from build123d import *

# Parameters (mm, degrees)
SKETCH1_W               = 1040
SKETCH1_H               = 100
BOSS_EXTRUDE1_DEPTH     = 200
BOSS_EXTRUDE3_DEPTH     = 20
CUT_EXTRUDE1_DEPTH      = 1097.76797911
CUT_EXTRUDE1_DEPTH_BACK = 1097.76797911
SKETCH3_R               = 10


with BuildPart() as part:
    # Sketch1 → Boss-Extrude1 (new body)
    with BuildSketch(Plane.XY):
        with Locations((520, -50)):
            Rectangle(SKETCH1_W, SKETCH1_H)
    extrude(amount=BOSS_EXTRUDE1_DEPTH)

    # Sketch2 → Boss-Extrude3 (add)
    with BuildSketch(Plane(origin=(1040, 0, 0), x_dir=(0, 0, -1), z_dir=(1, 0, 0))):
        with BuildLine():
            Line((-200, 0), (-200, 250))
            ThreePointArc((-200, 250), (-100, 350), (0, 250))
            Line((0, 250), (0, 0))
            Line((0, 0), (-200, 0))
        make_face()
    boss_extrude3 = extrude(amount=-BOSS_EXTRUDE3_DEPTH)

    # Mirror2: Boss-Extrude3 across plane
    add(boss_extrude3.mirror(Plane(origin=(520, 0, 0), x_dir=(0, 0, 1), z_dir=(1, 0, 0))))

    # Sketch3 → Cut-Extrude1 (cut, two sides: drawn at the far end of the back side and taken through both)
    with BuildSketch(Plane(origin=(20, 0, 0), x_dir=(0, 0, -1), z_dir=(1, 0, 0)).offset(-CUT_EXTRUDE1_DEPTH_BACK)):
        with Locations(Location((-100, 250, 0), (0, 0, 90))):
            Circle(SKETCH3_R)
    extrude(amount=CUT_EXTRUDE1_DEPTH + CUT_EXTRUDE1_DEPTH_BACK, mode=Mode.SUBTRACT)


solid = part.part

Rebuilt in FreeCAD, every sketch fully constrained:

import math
import FreeCAD as App
import Part
import Sketcher

V = App.Vector


def add_polygon(sketch, points):
    """Adds a closed chain of lines whose ends are joined by coincident constraints."""
    first, n = sketch.GeometryCount, len(points)
    for a, b in zip(points, points[1:] + points[:1]):
        sketch.addGeometry(Part.LineSegment(App.Vector(*a, 0), App.Vector(*b, 0)), False)
    for i in range(n):
        sketch.addConstraint(Sketcher.Constraint("Coincident", first + i, 2, first + (i + 1) % n, 1))

doc = App.newDocument("Part")
body = doc.addObject("PartDesign::Body", "Body")

# Sketch on XY plane
sketch1 = body.newObject("Sketcher::SketchObject", "Sketch")
sketch1.AttachmentSupport = (doc.getObject("XY_Plane"), [""])
sketch1.MapMode = "FlatFace"
add_polygon(sketch1, [(0, 0), (0, -100), (1040, -100), (1040, 0)])  # lines 0-3
sketch1.addConstraint(Sketcher.Constraint("Vertical", 0))
sketch1.addConstraint(Sketcher.Constraint("Horizontal", 1))
sketch1.addConstraint(Sketcher.Constraint("Vertical", 2))
sketch1.addConstraint(Sketcher.Constraint("Horizontal", 3))
sketch1.addConstraint(Sketcher.Constraint("Coincident", 3, 2, -1, 1))
sketch1.addConstraint(Sketcher.Constraint("DistanceX", 1, 1, 1, 2, 1040.0))
sketch1.addConstraint(Sketcher.Constraint("DistanceY", 0, 2, 0, 1, 100.0))
pad1 = body.newObject("PartDesign::Pad", "Pad")
pad1.Profile = sketch1
pad1.Length = 200

# Sketch on YZ plane
sketch2 = body.newObject("Sketcher::SketchObject", "Sketch001")
sketch2.AttachmentSupport = (doc.getObject("YZ_Plane"), [""])
sketch2.MapMode = "FlatFace"
sketch2.AttachmentOffset = App.Placement(V(0, 0, 1040), App.Rotation())
sketch2.addGeometry(Part.LineSegment(V(250, 200, 0), V(0, 200, 0)), False)
sketch2.addGeometry(Part.LineSegment(V(0, 200, 0), V(0, 0, 0)), False)
sketch2.addGeometry(Part.LineSegment(V(0, 0, 0), V(250, 0, 0)), False)
sketch2.addGeometry(Part.ArcOfCircle(Part.Circle(V(250, 100, 0), V(0, 0, 1), 100), math.radians(-90), math.radians(90)), False)
sketch2.addConstraint(Sketcher.Constraint("Coincident", 0, 2, 1, 1))
sketch2.addConstraint(Sketcher.Constraint("Coincident", 1, 2, 2, 1))
sketch2.addConstraint(Sketcher.Constraint("Tangent", 2, 2, 3, 1))
sketch2.addConstraint(Sketcher.Constraint("Tangent", 3, 2, 0, 1))
sketch2.addConstraint(Sketcher.Constraint("Horizontal", 0))
sketch2.addConstraint(Sketcher.Constraint("Vertical", 1))
sketch2.addConstraint(Sketcher.Constraint("Horizontal", 2))
sketch2.addConstraint(Sketcher.Constraint("Coincident", 1, 2, -1, 1))
sketch2.addConstraint(Sketcher.Constraint("Radius", 3, 100.0))
sketch2.addConstraint(Sketcher.Constraint("DistanceX", 0, 2, 0, 1, 250.0))
pad2 = body.newObject("PartDesign::Pad", "Pad001")
pad2.Profile = sketch2
pad2.Length = 20
pad2.Reversed = True
doc.recompute()

datumplane = body.newObject("PartDesign::Plane", "DatumPlane")
datumplane.AttachmentSupport = (doc.getObject("YZ_Plane"), [""])
datumplane.MapMode = "FlatFace"
datumplane.AttachmentOffset = App.Placement(V(0, 0, 520), App.Rotation())
mirrored = body.newObject("PartDesign::Mirrored", "Mirrored")
mirrored.Originals = [pad2]
mirrored.MirrorPlane = (datumplane, [""])
body.Tip = mirrored

# Sketch on YZ plane
sketch3 = body.newObject("Sketcher::SketchObject", "Sketch002")
sketch3.AttachmentSupport = (doc.getObject("YZ_Plane"), [""])
sketch3.MapMode = "FlatFace"
sketch3.AttachmentOffset = App.Placement(V(0, 0, 20), App.Rotation())
sketch3.addGeometry(Part.Circle(V(250, 100, 0), V(0, 0, 1), 10), False)
sketch3.addConstraint(Sketcher.Constraint("Diameter", 0, 20.0))
sketch3.addConstraint(Sketcher.Constraint("DistanceX", -1, 1, 0, 3, 250.0))
sketch3.addConstraint(Sketcher.Constraint("DistanceY", -1, 1, 0, 3, 100.0))
pocket1 = body.newObject("PartDesign::Pocket", "Pocket")
pocket1.Profile = sketch3
pocket1.Type = "ThroughAll"
pocket1.Midplane = True

doc.recompute()
